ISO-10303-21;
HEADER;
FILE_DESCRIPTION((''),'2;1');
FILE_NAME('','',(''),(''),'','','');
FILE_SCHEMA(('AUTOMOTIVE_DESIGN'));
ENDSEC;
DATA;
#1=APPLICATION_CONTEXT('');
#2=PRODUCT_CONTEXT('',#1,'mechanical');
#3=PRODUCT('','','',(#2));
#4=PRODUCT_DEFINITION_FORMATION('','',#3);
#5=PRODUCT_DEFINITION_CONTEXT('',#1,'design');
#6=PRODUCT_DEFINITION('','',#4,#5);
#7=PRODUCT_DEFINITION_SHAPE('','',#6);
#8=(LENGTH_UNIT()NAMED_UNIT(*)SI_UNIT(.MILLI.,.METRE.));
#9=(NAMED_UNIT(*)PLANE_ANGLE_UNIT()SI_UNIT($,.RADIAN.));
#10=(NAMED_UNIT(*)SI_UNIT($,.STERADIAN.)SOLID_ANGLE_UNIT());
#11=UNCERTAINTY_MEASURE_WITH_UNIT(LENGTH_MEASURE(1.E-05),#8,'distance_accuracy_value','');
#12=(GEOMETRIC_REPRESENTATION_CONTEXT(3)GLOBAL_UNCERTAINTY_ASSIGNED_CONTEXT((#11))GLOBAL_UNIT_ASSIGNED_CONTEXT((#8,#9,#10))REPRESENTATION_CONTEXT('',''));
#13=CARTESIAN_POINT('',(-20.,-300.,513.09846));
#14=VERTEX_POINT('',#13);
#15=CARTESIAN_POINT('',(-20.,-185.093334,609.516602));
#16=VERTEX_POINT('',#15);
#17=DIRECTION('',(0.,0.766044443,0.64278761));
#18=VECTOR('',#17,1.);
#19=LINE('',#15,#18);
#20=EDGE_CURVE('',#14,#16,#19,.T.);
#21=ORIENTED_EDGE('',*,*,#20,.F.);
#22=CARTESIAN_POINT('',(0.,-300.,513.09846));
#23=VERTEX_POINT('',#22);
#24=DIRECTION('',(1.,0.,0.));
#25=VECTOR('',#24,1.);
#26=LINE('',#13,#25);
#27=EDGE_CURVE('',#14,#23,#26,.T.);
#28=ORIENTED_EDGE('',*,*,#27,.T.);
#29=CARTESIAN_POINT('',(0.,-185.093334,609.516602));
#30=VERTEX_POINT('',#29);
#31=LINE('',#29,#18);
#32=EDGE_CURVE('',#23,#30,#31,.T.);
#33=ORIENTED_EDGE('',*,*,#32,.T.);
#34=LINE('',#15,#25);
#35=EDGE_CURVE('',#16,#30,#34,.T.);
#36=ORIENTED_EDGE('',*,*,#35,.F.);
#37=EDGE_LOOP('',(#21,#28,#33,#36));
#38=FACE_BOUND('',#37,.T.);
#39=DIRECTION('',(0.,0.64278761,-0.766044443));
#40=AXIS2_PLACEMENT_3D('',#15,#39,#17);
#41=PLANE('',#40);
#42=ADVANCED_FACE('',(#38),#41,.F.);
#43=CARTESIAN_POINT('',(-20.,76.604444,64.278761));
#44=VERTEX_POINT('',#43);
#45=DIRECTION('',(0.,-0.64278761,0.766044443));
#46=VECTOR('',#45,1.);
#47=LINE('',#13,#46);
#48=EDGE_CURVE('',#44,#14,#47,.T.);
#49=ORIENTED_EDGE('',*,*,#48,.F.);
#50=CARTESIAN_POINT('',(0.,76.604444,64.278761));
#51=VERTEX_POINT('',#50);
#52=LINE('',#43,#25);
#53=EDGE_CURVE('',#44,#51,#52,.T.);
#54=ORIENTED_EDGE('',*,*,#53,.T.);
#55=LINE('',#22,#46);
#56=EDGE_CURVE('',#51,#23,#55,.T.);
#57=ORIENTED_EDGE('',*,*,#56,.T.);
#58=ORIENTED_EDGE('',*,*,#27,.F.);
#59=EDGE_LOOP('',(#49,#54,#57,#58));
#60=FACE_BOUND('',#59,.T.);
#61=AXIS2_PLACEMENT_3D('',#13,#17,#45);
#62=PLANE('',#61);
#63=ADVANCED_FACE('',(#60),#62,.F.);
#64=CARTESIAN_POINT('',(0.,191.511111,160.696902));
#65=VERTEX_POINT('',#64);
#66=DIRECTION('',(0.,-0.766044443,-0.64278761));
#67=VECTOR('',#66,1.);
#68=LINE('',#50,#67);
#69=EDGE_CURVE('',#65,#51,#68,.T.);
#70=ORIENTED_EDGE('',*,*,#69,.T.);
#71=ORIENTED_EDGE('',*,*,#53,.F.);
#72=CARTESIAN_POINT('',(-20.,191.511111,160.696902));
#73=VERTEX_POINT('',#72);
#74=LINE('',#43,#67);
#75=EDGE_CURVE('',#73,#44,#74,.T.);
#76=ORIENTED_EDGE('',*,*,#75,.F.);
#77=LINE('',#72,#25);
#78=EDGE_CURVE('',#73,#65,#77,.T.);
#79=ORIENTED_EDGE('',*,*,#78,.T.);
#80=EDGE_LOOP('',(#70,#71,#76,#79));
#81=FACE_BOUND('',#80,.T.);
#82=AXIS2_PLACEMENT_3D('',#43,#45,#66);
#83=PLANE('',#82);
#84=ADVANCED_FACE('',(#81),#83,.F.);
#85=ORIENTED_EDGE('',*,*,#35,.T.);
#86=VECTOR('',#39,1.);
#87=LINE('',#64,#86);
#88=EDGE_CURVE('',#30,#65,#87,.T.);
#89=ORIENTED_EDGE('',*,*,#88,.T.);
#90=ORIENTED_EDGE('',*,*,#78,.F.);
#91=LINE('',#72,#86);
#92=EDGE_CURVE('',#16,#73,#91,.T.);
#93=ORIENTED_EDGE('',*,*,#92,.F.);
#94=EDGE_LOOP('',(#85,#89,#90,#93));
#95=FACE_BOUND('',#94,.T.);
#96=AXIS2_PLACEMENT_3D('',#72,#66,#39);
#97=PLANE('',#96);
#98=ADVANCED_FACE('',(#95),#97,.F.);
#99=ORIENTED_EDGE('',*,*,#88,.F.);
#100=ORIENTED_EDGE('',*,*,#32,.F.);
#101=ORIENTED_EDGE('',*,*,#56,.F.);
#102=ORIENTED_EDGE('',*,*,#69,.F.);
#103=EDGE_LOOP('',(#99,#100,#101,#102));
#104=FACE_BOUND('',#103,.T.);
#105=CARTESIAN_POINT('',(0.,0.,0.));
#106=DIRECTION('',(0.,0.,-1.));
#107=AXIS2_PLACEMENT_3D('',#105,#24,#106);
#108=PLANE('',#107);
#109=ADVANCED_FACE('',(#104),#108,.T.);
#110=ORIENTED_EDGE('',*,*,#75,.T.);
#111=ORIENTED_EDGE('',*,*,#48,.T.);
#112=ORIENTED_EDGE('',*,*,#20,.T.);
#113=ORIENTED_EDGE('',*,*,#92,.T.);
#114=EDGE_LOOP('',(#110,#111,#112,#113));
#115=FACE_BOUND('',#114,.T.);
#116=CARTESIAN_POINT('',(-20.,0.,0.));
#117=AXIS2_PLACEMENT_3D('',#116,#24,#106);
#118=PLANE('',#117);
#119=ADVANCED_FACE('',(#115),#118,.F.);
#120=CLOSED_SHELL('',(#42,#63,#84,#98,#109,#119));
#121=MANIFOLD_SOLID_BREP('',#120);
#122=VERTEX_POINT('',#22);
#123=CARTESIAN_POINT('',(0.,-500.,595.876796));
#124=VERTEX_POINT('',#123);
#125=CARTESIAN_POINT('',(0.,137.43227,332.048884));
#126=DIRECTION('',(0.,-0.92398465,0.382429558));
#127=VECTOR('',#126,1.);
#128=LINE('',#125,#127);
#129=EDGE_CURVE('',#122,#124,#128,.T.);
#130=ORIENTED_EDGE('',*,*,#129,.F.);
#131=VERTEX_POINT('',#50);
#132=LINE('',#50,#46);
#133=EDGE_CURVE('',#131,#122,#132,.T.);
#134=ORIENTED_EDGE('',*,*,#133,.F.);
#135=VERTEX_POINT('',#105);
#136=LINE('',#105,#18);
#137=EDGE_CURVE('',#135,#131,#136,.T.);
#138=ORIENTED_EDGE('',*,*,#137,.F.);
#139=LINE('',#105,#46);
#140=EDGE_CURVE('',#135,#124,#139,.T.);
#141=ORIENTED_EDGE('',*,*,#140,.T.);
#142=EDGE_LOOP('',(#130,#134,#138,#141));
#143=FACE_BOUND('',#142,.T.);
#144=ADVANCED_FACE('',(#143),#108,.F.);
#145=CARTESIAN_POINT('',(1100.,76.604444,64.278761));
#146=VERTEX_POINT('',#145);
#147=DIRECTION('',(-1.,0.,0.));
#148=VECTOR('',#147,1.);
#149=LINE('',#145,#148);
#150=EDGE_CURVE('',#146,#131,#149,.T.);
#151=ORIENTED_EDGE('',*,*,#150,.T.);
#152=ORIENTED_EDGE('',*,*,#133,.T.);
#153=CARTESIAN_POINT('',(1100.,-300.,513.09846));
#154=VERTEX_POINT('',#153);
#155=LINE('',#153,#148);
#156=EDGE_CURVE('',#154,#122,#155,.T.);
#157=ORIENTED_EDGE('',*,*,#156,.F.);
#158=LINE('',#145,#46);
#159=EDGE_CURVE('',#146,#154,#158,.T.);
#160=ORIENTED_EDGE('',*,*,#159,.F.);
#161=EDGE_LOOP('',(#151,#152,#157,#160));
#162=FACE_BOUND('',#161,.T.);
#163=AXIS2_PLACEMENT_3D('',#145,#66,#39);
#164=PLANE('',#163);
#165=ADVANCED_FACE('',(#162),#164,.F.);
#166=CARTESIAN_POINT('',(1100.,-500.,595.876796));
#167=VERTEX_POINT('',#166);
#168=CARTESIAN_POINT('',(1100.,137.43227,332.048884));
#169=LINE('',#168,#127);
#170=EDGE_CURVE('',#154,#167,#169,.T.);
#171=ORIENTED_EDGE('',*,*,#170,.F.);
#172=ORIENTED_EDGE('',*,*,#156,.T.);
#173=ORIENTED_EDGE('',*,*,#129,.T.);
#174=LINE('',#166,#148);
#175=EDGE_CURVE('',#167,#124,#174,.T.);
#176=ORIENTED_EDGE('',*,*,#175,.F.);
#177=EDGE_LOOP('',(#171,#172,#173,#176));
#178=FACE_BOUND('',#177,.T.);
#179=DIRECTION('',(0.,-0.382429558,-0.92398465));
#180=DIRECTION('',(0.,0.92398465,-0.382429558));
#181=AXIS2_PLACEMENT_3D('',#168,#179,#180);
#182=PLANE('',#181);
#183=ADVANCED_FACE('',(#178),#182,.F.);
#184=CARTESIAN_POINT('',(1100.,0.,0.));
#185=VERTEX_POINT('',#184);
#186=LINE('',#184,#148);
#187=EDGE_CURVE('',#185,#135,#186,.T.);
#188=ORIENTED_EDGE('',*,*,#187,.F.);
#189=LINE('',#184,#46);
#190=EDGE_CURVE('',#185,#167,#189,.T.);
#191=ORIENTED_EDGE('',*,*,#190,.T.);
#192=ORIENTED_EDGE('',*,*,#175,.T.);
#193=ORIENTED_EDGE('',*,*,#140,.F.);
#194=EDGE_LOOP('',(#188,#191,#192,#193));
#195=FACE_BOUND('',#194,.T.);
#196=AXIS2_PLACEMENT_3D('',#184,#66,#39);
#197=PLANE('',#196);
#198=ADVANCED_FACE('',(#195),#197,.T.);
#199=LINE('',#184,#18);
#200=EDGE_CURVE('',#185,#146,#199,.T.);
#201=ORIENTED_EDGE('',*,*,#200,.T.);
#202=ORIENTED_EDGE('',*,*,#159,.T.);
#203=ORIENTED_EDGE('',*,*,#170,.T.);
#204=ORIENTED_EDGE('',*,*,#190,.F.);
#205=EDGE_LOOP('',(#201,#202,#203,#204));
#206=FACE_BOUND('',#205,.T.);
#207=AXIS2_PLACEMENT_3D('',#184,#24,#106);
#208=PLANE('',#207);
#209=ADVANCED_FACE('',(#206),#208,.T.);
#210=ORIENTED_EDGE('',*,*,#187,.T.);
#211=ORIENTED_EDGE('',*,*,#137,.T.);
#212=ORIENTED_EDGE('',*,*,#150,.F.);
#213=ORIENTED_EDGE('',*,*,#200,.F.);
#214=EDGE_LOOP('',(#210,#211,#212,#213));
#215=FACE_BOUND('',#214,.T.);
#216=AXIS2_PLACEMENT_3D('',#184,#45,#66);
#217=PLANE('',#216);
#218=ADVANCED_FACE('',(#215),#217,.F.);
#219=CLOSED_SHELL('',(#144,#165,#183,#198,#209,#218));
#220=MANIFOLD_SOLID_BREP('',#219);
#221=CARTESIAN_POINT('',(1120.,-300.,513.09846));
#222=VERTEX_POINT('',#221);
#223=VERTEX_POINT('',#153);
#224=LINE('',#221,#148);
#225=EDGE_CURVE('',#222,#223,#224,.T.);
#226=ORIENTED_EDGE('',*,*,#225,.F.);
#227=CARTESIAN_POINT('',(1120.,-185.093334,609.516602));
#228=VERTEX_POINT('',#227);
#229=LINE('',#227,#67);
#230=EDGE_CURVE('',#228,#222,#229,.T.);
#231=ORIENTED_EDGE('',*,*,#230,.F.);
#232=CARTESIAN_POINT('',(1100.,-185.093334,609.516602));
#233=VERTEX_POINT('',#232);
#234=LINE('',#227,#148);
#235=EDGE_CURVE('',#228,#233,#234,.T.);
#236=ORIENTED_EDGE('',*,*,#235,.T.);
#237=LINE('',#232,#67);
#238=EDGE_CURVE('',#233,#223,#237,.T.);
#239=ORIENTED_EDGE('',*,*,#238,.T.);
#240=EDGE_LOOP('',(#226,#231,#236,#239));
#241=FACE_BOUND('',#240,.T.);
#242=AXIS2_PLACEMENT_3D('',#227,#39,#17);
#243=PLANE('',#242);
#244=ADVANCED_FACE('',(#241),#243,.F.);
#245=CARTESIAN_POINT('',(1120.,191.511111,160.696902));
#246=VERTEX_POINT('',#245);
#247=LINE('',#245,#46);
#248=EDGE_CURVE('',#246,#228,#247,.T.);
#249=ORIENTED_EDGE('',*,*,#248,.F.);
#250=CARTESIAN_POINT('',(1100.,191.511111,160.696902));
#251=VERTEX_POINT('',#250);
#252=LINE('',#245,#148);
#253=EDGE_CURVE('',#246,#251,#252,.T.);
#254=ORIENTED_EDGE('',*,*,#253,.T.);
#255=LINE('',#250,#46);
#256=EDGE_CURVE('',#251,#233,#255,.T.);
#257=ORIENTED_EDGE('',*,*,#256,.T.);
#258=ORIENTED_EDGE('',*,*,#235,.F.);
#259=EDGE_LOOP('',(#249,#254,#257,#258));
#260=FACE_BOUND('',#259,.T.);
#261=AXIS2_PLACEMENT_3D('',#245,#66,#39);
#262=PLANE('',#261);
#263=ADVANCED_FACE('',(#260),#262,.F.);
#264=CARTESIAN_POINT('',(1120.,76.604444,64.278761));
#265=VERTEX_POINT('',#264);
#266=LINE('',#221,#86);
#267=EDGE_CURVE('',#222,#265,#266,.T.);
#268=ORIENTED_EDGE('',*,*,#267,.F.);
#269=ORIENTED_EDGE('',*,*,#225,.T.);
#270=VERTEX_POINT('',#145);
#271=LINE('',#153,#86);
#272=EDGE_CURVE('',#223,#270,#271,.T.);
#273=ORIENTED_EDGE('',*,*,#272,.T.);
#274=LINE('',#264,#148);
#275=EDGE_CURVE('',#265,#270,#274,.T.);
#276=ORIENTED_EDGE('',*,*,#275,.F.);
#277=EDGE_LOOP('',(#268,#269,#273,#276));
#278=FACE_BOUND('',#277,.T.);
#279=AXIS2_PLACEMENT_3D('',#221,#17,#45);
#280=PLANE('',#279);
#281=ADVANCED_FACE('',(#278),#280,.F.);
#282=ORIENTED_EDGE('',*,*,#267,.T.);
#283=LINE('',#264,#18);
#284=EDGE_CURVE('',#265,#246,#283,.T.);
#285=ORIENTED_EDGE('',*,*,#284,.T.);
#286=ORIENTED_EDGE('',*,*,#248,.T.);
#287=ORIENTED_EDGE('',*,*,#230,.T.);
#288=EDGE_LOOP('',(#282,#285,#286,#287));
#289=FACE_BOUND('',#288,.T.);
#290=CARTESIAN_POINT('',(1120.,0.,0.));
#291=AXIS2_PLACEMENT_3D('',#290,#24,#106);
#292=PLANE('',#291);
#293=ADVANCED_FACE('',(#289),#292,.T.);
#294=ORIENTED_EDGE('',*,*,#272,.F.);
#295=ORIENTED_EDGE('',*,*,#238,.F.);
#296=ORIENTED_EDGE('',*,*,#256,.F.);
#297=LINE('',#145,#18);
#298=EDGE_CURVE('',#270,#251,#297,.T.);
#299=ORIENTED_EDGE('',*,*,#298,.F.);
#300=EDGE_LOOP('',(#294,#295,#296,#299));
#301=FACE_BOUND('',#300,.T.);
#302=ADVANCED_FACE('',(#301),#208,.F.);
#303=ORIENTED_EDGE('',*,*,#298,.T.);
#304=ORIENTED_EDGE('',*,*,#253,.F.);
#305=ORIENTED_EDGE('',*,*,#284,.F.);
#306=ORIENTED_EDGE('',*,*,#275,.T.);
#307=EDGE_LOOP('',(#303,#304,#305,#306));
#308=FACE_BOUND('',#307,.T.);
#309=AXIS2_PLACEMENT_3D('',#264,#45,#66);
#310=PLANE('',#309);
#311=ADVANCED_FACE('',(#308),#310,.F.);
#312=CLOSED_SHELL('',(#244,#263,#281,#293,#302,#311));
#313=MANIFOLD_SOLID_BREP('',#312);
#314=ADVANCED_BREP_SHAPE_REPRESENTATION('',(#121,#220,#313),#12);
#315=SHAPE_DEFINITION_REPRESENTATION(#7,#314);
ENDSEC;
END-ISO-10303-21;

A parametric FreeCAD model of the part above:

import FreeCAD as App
import Part
import Sketcher
Q = App.Units.Quantity


def add_polygon(sketch, points):
    """Adds a closed chain of lines whose ends are joined by coincident constraints."""
    first, n = sketch.GeometryCount, len(points)
    for a, b in zip(points, points[1:] + points[:1]):
        sketch.addGeometry(Part.LineSegment(App.Vector(*a, 0), App.Vector(*b, 0)), False)
    for i in range(n):
        sketch.addConstraint(Sketcher.Constraint("Coincident", first + i, 2, first + (i + 1) % n, 1))

doc = App.newDocument("Part")
params = doc.addObject("Spreadsheet::Sheet", "Params")
for row, (alias, value) in enumerate([
    ("sketch1_length", "100 mm"),
    ("pad1_length", "1100 mm"),
    ("sketch2_length", "150 mm"),
    ("pad2_length", "20 mm"),
    ("sketch3_length", "150 mm"),
    ("pad3_length", "20 mm"),
], start=1):
    params.set(f"A{row}", alias)
    params.set(f"B{row}", "=" + value)
    params.setAlias(f"B{row}", alias)

body = doc.addObject("PartDesign::Body", "Body")

sketch1 = body.newObject("Sketcher::SketchObject", "Sketch")
sketch1.AttachmentSupport = (doc.getObject("YZ_Plane"), [""])
sketch1.MapMode = "FlatFace"
add_polygon(sketch1, [(0, 0), (77, 64), (-300, 513), (-500, 596)])
sketch1.addConstraint([
    Sketcher.Constraint("Coincident", 3, 2, -1, 1),
    Sketcher.Constraint("Perpendicular", 0, 1),
    Sketcher.Constraint("Parallel", 1, 3),
    Sketcher.Constraint("Angle", 0, Q("40 deg")),
    Sketcher.Constraint("Distance", 0, 100.0),
    Sketcher.Constraint("DistanceX", 1, 2, -1, 1, 300.0),
    Sketcher.Constraint("DistanceX", 2, 2, -1, 1, 500.0),
])
sketch1.setExpression("Constraints[8]", "Params.sketch1_length")
pad1 = body.newObject("PartDesign::Pad", "Pad")
pad1.Profile = sketch1
pad1.setExpression("Length", "Params.pad1_length")
body2 = doc.addObject("PartDesign::Body", "Body001")

sketch2 = body2.newObject("Sketcher::SketchObject", "Sketch001")
sketch2.AttachmentSupport = (doc.getObject("YZ_Plane001"), [""])
sketch2.MapMode = "FlatFace"
sketch2.AttachmentOffset = App.Placement(App.Vector(0, 0, 1100), App.Rotation())
add_polygon(sketch2, [(-185, 610), (-300, 513), (77, 64), (192, 161)])
sketch2.addConstraint([
    Sketcher.Constraint("Perpendicular", 0, 1),
    Sketcher.Constraint("Perpendicular", 1, 2),
    Sketcher.Constraint("Perpendicular", 2, 3),
    Sketcher.Constraint("Angle", 0, Q("-140 deg")),
    Sketcher.Constraint("Distance", 0, 150.0),
    Sketcher.Constraint("DistanceX", 0, 2, -1, 1, 300.0),
    Sketcher.Constraint("DistanceY", -1, 1, 3, 2, 609.516602),
    Sketcher.Constraint("DistanceY", 1, 2, 0, 2, 448.819699),
])
sketch2.setExpression("Constraints[8]", "Params.sketch2_length")
pad2 = body2.newObject("PartDesign::Pad", "Pad001")
pad2.Profile = sketch2
pad2.setExpression("Length", "Params.pad2_length")
body3 = doc.addObject("PartDesign::Body", "Body002")

sketch3 = body3.newObject("Sketcher::SketchObject", "Sketch002")
sketch3.AttachmentSupport = (doc.getObject("YZ_Plane002"), [""])
sketch3.MapMode = "FlatFace"
add_polygon(sketch3, [(192, 161), (77, 64), (-300, 513), (-185, 610)])
sketch3.addConstraint([
    Sketcher.Constraint("Perpendicular", 0, 1),
    Sketcher.Constraint("Perpendicular", 1, 2),
    Sketcher.Constraint("Perpendicular", 2, 3),
    Sketcher.Constraint("Angle", 0, Q("-140 deg")),
    Sketcher.Constraint("Distance", 0, 150.0),
    Sketcher.Constraint("DistanceX", 1, 2, -1, 1, 300.0),
    Sketcher.Constraint("DistanceY", -1, 1, 2, 2, 609.516602),
    Sketcher.Constraint("DistanceY", 0, 2, 1, 2, 448.819699),
])
sketch3.setExpression("Constraints[8]", "Params.sketch3_length")
pad3 = body3.newObject("PartDesign::Pad", "Pad002")
pad3.Profile = sketch3
pad3.setExpression("Length", "Params.pad3_length")
pad3.Reversed = True

doc.recompute()
